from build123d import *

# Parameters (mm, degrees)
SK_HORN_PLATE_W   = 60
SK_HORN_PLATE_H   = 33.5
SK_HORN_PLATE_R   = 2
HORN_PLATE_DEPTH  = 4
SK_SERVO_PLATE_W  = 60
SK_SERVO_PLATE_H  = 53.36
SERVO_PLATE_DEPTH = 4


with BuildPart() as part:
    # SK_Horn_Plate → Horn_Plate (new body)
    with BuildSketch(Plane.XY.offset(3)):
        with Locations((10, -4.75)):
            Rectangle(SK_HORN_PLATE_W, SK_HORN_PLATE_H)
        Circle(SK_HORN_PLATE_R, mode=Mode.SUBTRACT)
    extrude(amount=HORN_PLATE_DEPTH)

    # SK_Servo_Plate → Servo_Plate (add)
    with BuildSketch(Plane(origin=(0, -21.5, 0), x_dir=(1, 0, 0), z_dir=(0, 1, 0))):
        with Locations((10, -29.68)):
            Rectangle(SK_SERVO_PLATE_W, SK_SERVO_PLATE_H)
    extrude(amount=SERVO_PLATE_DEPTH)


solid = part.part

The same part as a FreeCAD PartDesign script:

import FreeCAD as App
import Part
import Sketcher
from FreeCAD import Vector

doc = App.newDocument("Part")
body = doc.addObject("PartDesign::Body", "Body")

sketch1 = body.newObject("Sketcher::SketchObject", "Sketch")
sketch1.AttachmentSupport = (doc.getObject("XY_Plane"), [""])
sketch1.MapMode = "FlatFace"
sketch1.AttachmentOffset = App.Placement(Vector(0, 0, 3), App.Rotation())
sketch1.addGeometry([
    Part.LineSegment(Vector(-20, 12, 0), Vector(-20, -21.5, 0)),
    Part.LineSegment(Vector(-20, -21.5, 0), Vector(40, -21.5, 0)),
    Part.LineSegment(Vector(40, -21.5, 0), Vector(40, 12, 0)),
    Part.LineSegment(Vector(40, 12, 0), Vector(-20, 12, 0)),
    Part.Circle(Vector(0, 0, 0), Vector(0, 0, 1), 2),
], False)
sketch1.addConstraint([
    Sketcher.Constraint("Coincident", 0, 2, 1, 1),
    Sketcher.Constraint("Coincident", 1, 2, 2, 1),
    Sketcher.Constraint("Coincident", 2, 2, 3, 1),
    Sketcher.Constraint("Coincident", 3, 2, 0, 1),
    Sketcher.Constraint("Vertical", 0),
    Sketcher.Constraint("Horizontal", 1),
    Sketcher.Constraint("Vertical", 2),
    Sketcher.Constraint("Horizontal", 3),
    Sketcher.Constraint("Coincident", 4, 3, -1, 1),
    Sketcher.Constraint("Diameter", 4, 4.0),
    Sketcher.Constraint("DistanceX", 1, 1, 1, 2, 60.0),
    Sketcher.Constraint("DistanceY", 0, 2, 0, 1, 33.5),
    Sketcher.Constraint("DistanceX", 0, 2, -1, 1, 20.0),
    Sketcher.Constraint("DistanceY", -1, 1, 2, 2, 12.0),
])
pad1 = body.newObject("PartDesign::Pad", "Pad")
pad1.Profile = sketch1
pad1.Length = 4

sketch2 = body.newObject("Sketcher::SketchObject", "Sketch001")
sketch2.AttachmentSupport = (doc.getObject("XZ_Plane"), [""])
sketch2.MapMode = "FlatFace"
sketch2.AttachmentOffset = App.Placement(Vector(0, 0, 21.5), App.Rotation())
sketch2.addGeometry([
    Part.LineSegment(Vector(-20, 3, 0), Vector(-20, 56.36, 0)),
    Part.LineSegment(Vector(-20, 56.36, 0), Vector(40, 56.36, 0)),
    Part.LineSegment(Vector(40, 56.36, 0), Vector(40, 3, 0)),
    Part.LineSegment(Vector(40, 3, 0), Vector(-20, 3, 0)),
], False)
sketch2.addConstraint([
    Sketcher.Constraint("Coincident", 0, 2, 1, 1),
    Sketcher.Constraint("Coincident", 1, 2, 2, 1),
    Sketcher.Constraint("Coincident", 2, 2, 3, 1),
    Sketcher.Constraint("Coincident", 3, 2, 0, 1),
    Sketcher.Constraint("Vertical", 0),
    Sketcher.Constraint("Horizontal", 1),
    Sketcher.Constraint("Vertical", 2),
    Sketcher.Constraint("Horizontal", 3),
    Sketcher.Constraint("DistanceX", 1, 1, 1, 2, 60.0),
    Sketcher.Constraint("DistanceX", 0, 2, -1, 1, 20.0),
    Sketcher.Constraint("DistanceY", -1, 1, 2, 2, 3.0),
    Sketcher.Constraint("DistanceY", 0, 1, 0, 2, 53.36),
])
pad2 = body.newObject("PartDesign::Pad", "Pad001")
pad2.Profile = sketch2
pad2.Length = 4
pad2.Reversed = True

doc.recompute()
